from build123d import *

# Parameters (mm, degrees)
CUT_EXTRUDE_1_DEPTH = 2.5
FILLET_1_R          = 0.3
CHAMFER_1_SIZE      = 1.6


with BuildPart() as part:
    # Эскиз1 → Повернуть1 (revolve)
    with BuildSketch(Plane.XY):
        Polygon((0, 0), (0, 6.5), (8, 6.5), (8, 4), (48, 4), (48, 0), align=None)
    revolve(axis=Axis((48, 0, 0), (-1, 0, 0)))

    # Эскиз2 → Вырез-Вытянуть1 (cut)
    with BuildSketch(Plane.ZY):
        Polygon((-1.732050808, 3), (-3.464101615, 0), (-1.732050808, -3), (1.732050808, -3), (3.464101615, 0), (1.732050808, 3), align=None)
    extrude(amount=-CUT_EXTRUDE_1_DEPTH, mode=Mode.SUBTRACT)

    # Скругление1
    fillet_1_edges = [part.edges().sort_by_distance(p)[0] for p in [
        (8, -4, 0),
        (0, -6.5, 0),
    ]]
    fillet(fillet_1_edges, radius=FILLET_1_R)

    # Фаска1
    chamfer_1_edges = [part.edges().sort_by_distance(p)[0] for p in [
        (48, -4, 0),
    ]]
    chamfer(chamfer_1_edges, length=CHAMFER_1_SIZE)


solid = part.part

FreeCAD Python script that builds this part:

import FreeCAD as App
import Part
import Sketcher

V = App.Vector
Q = App.Units.Quantity


def edges_at(feature, points):
    """Names of the edges that pass closest to the given points."""
    edges = feature.Shape.Edges
    near = lambda p: min(range(len(edges)), key=lambda i: edges[i].distToShape(Part.Vertex(*p))[0])
    return sorted({f"Edge{near(p) + 1}" for p in points})


def add_polygon(sketch, points):
    """Adds a closed chain of lines whose ends are joined by coincident constraints."""
    first, n = sketch.GeometryCount, len(points)
    for a, b in zip(points, points[1:] + points[:1]):
        sketch.addGeometry(Part.LineSegment(App.Vector(*a, 0), App.Vector(*b, 0)), False)
    for i in range(n):
        sketch.addConstraint(Sketcher.Constraint("Coincident", first + i, 2, first + (i + 1) % n, 1))

doc = App.newDocument("Part")
body = doc.addObject("PartDesign::Body", "Body")

# Sketch on XY plane
sketch1 = body.newObject("Sketcher::SketchObject", "Sketch")
sketch1.AttachmentSupport = (doc.getObject("XY_Plane"), [""])
sketch1.MapMode = "FlatFace"
add_polygon(sketch1, [(0, 6.5), (0, 0), (48, 0), (48, 4), (8, 4), (8, 6.5)])  # lines 0-5
sketch1.addConstraint(Sketcher.Constraint("Vertical", 0))
sketch1.addConstraint(Sketcher.Constraint("Horizontal", 1))
sketch1.addConstraint(Sketcher.Constraint("Vertical", 2))
sketch1.addConstraint(Sketcher.Constraint("Horizontal", 3))
sketch1.addConstraint(Sketcher.Constraint("Vertical", 4))
sketch1.addConstraint(Sketcher.Constraint("Horizontal", 5))
sketch1.addConstraint(Sketcher.Constraint("Coincident", 0, 2, -1, 1))
sketch1.addConstraint(Sketcher.Constraint("DistanceX", 1, 1, 1, 2, Q("48 mm")))
sketch1.addConstraint(Sketcher.Constraint("DistanceX", 3, 2, 3, 1, Q("40 mm")))
sketch1.addConstraint(Sketcher.Constraint("DistanceY", 2, 1, 2, 2, Q("4 mm")))
sketch1.addConstraint(Sketcher.Constraint("DistanceY", 0, 2, 0, 1, Q("6.5 mm")))
revolution = body.newObject("PartDesign::Revolution", "Revolution")
revolution.Profile = sketch1
revolution.ReferenceAxis = (sketch1, ["H_Axis"])
revolution.Angle = 360

# Sketch on YZ plane
sketch2 = body.newObject("Sketcher::SketchObject", "Sketch001")
sketch2.AttachmentSupport = (doc.getObject("YZ_Plane"), [""])
sketch2.MapMode = "FlatFace"
add_polygon(sketch2, [(3, -1.7), (0, -3.5), (-3, -1.7), (-3, 1.7), (0, 3.5), (3, 1.7)])  # lines 0-5
sketch2.addConstraint(Sketcher.Constraint("Vertical", 2))
sketch2.addConstraint(Sketcher.Constraint("Vertical", 5))
sketch2.addConstraint(Sketcher.Constraint("Symmetric", 0, 2, 3, 2, -1, 1))
sketch2.addConstraint(Sketcher.Constraint("Symmetric", 1, 2, 4, 2, -1, 1))
sketch2.addConstraint(Sketcher.Constraint("PointOnObject", 0, 2, -2))
sketch2.addConstraint(Sketcher.Constraint("Parallel", 0, 3))
sketch2.addConstraint(Sketcher.Constraint("Horizontal", 2, 2, 4, 2))
sketch2.addConstraint(Sketcher.Constraint("Angle", 0, Q("-150 deg")))
sketch2.addConstraint(Sketcher.Constraint("DistanceX", 1, 2, -1, 1, Q("3 mm")))
sketch2.addConstraint(Sketcher.Constraint("DistanceY", 2, 1, 2, 2, Q("3.464102 mm")))
pocket1 = body.newObject("PartDesign::Pocket", "Pocket")
pocket1.Profile = sketch2
pocket1.Length = 2.5
pocket1.Reversed = True
doc.recompute()

fillet = body.newObject("PartDesign::Fillet", "Fillet")
fillet.Base = (pocket1, edges_at(pocket1, [(8, -4, 0), (0, -6.5, 0)]))
fillet.Radius = 0.3
doc.recompute()

chamfer = body.newObject("PartDesign::Chamfer", "Chamfer")
chamfer.Base = (fillet, edges_at(fillet, [(48, -4, 0)]))
chamfer.Size = 1.6

doc.recompute()
